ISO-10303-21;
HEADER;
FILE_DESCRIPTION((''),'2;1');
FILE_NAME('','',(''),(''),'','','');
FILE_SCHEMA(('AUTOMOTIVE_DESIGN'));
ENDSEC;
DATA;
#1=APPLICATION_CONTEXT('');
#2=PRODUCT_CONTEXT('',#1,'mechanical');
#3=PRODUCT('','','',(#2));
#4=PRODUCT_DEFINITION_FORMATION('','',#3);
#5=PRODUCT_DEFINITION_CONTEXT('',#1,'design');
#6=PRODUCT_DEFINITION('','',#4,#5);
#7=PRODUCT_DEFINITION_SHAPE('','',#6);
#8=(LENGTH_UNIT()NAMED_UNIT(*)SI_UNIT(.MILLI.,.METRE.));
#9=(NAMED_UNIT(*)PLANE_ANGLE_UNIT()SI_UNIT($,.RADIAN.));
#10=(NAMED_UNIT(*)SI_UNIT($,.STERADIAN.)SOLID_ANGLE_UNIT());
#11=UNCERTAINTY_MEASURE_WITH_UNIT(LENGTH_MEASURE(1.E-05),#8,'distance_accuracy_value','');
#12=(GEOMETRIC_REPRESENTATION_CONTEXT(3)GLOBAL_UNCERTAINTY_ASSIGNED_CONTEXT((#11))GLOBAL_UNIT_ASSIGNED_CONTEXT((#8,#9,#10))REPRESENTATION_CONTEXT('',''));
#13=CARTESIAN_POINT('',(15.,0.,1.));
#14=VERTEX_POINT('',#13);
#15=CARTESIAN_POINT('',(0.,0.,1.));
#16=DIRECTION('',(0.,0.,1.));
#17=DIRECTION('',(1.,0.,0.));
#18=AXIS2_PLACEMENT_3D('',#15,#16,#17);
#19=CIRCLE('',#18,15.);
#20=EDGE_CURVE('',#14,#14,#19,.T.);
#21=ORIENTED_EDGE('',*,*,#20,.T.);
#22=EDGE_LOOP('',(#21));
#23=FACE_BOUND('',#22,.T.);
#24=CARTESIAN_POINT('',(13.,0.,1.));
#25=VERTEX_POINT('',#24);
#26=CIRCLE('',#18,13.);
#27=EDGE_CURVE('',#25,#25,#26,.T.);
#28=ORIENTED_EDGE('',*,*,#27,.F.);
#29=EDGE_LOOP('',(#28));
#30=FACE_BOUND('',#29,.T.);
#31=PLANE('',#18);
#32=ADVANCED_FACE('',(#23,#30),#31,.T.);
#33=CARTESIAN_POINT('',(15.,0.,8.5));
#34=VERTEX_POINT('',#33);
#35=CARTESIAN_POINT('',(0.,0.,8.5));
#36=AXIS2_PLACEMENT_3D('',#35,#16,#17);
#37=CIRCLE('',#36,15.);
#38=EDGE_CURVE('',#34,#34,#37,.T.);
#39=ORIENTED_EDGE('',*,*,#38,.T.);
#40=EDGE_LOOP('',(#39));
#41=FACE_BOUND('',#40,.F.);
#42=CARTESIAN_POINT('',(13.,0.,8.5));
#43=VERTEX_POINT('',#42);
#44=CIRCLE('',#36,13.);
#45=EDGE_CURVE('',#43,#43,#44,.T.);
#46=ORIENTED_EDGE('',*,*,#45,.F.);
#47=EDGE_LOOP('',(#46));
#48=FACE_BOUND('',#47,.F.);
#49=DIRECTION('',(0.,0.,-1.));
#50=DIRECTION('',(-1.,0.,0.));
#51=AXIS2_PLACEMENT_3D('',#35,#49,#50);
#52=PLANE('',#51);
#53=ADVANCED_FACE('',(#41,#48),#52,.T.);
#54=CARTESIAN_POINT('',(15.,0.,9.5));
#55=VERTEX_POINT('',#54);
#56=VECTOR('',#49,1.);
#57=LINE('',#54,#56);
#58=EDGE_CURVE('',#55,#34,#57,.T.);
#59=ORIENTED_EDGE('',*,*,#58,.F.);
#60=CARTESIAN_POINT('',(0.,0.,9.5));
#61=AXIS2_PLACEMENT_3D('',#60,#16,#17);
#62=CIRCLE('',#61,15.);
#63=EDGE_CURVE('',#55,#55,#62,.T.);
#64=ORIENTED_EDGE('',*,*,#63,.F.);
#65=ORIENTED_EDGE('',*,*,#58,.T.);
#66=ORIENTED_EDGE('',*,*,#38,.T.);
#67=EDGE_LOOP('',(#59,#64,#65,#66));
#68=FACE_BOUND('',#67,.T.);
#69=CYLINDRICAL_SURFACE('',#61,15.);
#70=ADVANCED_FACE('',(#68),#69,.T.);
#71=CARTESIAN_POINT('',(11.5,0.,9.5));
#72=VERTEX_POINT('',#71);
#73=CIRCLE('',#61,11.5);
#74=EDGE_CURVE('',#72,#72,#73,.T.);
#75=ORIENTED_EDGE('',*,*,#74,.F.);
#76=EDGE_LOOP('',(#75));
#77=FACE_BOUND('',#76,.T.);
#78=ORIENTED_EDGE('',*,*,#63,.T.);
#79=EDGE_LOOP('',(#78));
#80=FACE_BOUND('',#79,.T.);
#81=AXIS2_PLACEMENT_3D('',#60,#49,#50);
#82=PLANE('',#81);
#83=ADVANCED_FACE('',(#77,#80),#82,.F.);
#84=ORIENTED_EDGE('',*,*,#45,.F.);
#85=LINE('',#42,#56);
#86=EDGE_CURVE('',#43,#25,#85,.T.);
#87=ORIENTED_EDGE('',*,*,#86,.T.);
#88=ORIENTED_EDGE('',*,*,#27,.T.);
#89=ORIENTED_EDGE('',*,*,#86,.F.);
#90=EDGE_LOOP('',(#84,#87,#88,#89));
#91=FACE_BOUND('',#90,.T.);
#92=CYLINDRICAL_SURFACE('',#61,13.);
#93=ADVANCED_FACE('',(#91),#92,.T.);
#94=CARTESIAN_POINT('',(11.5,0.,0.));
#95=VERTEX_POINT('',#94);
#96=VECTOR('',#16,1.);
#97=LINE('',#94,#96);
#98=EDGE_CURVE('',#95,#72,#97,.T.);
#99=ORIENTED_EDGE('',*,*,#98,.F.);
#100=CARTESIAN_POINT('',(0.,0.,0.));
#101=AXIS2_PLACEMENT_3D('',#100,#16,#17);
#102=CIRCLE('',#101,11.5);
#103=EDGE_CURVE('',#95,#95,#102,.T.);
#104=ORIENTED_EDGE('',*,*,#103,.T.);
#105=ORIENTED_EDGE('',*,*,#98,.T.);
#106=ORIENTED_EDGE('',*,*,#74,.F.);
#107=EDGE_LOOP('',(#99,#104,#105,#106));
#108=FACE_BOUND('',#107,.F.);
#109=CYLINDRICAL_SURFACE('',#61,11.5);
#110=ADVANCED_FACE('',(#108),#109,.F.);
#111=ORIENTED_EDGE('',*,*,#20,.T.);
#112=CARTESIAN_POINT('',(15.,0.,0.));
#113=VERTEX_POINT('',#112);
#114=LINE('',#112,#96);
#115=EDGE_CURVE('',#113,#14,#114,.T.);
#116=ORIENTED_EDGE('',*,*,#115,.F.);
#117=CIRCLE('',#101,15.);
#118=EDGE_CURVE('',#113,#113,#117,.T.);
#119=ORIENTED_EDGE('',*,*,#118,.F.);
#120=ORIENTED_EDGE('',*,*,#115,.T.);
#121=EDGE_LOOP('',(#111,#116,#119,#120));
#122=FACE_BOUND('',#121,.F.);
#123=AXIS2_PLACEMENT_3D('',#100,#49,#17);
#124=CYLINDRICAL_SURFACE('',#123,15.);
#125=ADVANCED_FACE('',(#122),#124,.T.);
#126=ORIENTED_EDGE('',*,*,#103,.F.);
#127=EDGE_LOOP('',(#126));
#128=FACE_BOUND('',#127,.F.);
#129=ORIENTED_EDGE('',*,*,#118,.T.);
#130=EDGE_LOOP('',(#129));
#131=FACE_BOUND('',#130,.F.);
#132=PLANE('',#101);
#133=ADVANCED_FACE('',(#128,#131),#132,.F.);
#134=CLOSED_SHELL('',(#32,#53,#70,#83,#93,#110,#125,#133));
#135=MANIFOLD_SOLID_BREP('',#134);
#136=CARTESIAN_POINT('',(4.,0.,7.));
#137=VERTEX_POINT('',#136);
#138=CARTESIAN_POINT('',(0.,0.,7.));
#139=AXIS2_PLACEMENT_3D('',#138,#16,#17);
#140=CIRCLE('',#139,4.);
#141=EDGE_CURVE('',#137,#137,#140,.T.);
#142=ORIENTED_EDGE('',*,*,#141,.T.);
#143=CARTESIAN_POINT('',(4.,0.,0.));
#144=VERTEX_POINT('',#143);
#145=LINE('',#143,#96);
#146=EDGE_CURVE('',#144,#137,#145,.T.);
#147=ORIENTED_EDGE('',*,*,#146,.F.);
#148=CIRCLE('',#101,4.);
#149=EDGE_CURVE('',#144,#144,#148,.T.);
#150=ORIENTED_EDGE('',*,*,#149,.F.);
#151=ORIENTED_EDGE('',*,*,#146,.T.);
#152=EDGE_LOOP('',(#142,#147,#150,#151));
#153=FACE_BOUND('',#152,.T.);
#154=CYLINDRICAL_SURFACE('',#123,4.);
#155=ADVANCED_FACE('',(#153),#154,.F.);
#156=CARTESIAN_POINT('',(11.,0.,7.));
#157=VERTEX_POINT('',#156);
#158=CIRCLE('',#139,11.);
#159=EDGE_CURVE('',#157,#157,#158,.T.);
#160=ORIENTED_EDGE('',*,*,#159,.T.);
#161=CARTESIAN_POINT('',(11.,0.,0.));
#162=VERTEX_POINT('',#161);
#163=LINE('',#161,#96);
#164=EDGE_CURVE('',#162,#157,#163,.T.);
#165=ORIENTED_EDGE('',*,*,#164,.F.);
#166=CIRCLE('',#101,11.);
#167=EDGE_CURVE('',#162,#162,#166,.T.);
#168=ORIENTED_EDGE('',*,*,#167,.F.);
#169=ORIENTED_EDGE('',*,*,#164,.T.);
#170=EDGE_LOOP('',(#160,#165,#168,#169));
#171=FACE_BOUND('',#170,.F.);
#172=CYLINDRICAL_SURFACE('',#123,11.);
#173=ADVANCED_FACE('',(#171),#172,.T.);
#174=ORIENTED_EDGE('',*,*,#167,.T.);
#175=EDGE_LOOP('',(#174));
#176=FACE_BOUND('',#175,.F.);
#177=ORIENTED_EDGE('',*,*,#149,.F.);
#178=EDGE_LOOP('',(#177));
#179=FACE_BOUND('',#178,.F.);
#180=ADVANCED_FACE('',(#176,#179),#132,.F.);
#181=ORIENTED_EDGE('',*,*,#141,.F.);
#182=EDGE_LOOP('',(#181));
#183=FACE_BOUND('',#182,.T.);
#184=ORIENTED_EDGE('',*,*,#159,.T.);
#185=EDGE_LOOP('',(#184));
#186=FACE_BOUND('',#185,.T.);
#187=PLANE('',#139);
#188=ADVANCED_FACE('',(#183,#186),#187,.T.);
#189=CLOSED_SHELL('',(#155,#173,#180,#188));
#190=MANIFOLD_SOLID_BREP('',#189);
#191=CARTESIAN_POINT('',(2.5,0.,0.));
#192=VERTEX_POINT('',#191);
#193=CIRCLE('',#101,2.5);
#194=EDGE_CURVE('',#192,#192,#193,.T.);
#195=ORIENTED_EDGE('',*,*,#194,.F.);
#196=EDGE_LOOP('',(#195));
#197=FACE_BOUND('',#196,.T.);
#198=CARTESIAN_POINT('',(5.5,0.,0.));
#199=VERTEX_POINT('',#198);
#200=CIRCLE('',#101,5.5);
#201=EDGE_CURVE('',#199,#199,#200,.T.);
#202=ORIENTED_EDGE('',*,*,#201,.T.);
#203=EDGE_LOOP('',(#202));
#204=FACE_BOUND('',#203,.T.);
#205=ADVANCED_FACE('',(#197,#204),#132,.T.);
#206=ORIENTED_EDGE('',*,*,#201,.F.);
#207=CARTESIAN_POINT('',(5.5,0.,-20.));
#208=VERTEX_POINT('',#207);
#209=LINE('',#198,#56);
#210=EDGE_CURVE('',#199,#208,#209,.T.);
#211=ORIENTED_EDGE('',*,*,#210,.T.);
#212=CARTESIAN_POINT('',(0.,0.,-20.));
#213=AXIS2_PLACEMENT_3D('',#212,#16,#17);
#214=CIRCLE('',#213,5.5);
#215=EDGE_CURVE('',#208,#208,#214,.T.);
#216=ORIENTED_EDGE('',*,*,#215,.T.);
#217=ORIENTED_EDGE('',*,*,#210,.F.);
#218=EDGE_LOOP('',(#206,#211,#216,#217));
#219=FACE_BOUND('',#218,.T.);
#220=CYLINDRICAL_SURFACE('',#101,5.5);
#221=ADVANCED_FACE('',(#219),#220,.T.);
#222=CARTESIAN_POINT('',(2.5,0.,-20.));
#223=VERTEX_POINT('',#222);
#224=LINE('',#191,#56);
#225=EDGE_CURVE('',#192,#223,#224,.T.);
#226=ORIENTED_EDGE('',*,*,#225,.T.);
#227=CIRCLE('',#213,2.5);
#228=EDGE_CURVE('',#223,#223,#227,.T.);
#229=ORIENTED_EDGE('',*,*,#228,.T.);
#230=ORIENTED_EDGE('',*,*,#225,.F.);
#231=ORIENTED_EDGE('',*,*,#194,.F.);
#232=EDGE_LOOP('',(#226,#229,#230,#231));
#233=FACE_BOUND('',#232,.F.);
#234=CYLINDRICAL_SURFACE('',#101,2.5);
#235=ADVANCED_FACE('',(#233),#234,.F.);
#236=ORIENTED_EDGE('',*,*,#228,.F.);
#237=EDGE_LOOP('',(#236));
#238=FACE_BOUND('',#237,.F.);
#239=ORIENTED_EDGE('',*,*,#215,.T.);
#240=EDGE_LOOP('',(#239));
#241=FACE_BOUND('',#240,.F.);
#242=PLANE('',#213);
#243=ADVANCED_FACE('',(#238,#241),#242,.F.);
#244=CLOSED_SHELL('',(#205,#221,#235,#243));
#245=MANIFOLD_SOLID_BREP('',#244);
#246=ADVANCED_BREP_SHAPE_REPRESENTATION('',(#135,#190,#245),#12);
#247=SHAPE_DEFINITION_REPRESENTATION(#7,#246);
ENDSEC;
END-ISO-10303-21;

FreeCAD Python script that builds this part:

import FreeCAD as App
import Part
import Sketcher
from FreeCAD import Vector
Q = App.Units.Quantity

doc = App.newDocument("Part")
body = doc.addObject("PartDesign::Body", "Body")

# Sketch on XY plane
sketch1 = body.newObject("Sketcher::SketchObject", "Sketch")
sketch1.AttachmentSupport = (doc.getObject("XY_Plane"), [""])
sketch1.MapMode = "FlatFace"
sketch1.addGeometry([
    Part.Circle(Vector(0, 0, 0), Vector(0, 0, 1), 11),
    Part.Circle(Vector(0, 0, 0), Vector(0, 0, 1), 4),
], False)
sketch1.addConstraint([
    Sketcher.Constraint("Coincident", 0, 3, -1, 1),
    Sketcher.Constraint("Coincident", 1, 3, -1, 1),
    Sketcher.Constraint("Diameter", 0, Q("22 mm")),
    Sketcher.Constraint("Diameter", 1, Q("8 mm")),
])
pad1 = body.newObject("PartDesign::Pad", "Pad")
pad1.Profile = sketch1
pad1.Length = 7
body2 = doc.addObject("PartDesign::Body", "Body001")

# Sketch on XY plane
sketch2 = body2.newObject("Sketcher::SketchObject", "Sketch001")
sketch2.AttachmentSupport = (doc.getObject("XY_Plane001"), [""])
sketch2.MapMode = "FlatFace"
sketch2.addGeometry([
    Part.Circle(Vector(0, 0, 0), Vector(0, 0, 1), 5.5),
    Part.Circle(Vector(0, 0, 0), Vector(0, 0, 1), 2.5),
], False)
sketch2.addConstraint([
    Sketcher.Constraint("Coincident", 0, 3, -1, 1),
    Sketcher.Constraint("Coincident", 1, 3, -1, 1),
    Sketcher.Constraint("Diameter", 0, Q("11 mm")),
    Sketcher.Constraint("Diameter", 1, Q("5 mm")),
])
pad2 = body2.newObject("PartDesign::Pad", "Pad001")
pad2.Profile = sketch2
pad2.Length = 20
pad2.Reversed = True
body3 = doc.addObject("PartDesign::Body", "Body002")

# Sketch on XY plane
sketch3 = body3.newObject("Sketcher::SketchObject", "Sketch002")
sketch3.AttachmentSupport = (doc.getObject("XY_Plane002"), [""])
sketch3.MapMode = "FlatFace"
sketch3.addGeometry([
    Part.Circle(Vector(0, 0, 0), Vector(0, 0, 1), 13),
    Part.Circle(Vector(0, 0, 0), Vector(0, 0, 1), 12),
], False)
sketch3.addConstraint([
    Sketcher.Constraint("Coincident", 0, 3, -1, 1),
    Sketcher.Constraint("Coincident", 1, 3, -1, 1),
    Sketcher.Constraint("Diameter", 0, Q("26 mm")),
    Sketcher.Constraint("Diameter", 1, Q("23 mm")),
])
pad3 = body3.newObject("PartDesign::Pad", "Pad002")
pad3.Profile = sketch3
pad3.Length = 4.75

# Sketch on XY plane
sketch4 = body3.newObject("Sketcher::SketchObject", "Sketch003")
sketch4.AttachmentSupport = (doc.getObject("XY_Plane002"), [""])
sketch4.MapMode = "FlatFace"
sketch4.addGeometry([
    Part.Circle(Vector(0, 0, 0), Vector(0, 0, 1), 15),
    Part.Circle(Vector(0, 0, 0), Vector(0, 0, 1), 13),
], False)
sketch4.addConstraint([
    Sketcher.Constraint("Coincident", 0, 3, -1, 1),
    Sketcher.Constraint("Coincident", 1, 3, -1, 1),
    Sketcher.Constraint("Diameter", 0, Q("30 mm")),
    Sketcher.Constraint("Diameter", 1, Q("26 mm")),
])
pad4 = body3.newObject("PartDesign::Pad", "Pad003")
pad4.Profile = sketch4
pad4.Length = 1
body4 = doc.addObject("PartDesign::Body", "Body003")
doc.recompute()

body4.BaseFeature = body3
doc.recompute()

mirroring = doc.addObject("Part::Mirroring", "Mirroring")
mirroring.Source = body3
mirroring.Base = Vector(0, 0, 4.75)
mirroring.Normal = Vector(0, 0, 1)
body5 = doc.addObject("PartDesign::Body", "Body004")
body5.BaseFeature = mirroring
boolean = body4.newObject("PartDesign::Boolean", "Boolean")
boolean.Type = "Fuse"
boolean.addObjects([body5])
doc.recompute()
mirroring.Visibility = False

doc.recompute()
